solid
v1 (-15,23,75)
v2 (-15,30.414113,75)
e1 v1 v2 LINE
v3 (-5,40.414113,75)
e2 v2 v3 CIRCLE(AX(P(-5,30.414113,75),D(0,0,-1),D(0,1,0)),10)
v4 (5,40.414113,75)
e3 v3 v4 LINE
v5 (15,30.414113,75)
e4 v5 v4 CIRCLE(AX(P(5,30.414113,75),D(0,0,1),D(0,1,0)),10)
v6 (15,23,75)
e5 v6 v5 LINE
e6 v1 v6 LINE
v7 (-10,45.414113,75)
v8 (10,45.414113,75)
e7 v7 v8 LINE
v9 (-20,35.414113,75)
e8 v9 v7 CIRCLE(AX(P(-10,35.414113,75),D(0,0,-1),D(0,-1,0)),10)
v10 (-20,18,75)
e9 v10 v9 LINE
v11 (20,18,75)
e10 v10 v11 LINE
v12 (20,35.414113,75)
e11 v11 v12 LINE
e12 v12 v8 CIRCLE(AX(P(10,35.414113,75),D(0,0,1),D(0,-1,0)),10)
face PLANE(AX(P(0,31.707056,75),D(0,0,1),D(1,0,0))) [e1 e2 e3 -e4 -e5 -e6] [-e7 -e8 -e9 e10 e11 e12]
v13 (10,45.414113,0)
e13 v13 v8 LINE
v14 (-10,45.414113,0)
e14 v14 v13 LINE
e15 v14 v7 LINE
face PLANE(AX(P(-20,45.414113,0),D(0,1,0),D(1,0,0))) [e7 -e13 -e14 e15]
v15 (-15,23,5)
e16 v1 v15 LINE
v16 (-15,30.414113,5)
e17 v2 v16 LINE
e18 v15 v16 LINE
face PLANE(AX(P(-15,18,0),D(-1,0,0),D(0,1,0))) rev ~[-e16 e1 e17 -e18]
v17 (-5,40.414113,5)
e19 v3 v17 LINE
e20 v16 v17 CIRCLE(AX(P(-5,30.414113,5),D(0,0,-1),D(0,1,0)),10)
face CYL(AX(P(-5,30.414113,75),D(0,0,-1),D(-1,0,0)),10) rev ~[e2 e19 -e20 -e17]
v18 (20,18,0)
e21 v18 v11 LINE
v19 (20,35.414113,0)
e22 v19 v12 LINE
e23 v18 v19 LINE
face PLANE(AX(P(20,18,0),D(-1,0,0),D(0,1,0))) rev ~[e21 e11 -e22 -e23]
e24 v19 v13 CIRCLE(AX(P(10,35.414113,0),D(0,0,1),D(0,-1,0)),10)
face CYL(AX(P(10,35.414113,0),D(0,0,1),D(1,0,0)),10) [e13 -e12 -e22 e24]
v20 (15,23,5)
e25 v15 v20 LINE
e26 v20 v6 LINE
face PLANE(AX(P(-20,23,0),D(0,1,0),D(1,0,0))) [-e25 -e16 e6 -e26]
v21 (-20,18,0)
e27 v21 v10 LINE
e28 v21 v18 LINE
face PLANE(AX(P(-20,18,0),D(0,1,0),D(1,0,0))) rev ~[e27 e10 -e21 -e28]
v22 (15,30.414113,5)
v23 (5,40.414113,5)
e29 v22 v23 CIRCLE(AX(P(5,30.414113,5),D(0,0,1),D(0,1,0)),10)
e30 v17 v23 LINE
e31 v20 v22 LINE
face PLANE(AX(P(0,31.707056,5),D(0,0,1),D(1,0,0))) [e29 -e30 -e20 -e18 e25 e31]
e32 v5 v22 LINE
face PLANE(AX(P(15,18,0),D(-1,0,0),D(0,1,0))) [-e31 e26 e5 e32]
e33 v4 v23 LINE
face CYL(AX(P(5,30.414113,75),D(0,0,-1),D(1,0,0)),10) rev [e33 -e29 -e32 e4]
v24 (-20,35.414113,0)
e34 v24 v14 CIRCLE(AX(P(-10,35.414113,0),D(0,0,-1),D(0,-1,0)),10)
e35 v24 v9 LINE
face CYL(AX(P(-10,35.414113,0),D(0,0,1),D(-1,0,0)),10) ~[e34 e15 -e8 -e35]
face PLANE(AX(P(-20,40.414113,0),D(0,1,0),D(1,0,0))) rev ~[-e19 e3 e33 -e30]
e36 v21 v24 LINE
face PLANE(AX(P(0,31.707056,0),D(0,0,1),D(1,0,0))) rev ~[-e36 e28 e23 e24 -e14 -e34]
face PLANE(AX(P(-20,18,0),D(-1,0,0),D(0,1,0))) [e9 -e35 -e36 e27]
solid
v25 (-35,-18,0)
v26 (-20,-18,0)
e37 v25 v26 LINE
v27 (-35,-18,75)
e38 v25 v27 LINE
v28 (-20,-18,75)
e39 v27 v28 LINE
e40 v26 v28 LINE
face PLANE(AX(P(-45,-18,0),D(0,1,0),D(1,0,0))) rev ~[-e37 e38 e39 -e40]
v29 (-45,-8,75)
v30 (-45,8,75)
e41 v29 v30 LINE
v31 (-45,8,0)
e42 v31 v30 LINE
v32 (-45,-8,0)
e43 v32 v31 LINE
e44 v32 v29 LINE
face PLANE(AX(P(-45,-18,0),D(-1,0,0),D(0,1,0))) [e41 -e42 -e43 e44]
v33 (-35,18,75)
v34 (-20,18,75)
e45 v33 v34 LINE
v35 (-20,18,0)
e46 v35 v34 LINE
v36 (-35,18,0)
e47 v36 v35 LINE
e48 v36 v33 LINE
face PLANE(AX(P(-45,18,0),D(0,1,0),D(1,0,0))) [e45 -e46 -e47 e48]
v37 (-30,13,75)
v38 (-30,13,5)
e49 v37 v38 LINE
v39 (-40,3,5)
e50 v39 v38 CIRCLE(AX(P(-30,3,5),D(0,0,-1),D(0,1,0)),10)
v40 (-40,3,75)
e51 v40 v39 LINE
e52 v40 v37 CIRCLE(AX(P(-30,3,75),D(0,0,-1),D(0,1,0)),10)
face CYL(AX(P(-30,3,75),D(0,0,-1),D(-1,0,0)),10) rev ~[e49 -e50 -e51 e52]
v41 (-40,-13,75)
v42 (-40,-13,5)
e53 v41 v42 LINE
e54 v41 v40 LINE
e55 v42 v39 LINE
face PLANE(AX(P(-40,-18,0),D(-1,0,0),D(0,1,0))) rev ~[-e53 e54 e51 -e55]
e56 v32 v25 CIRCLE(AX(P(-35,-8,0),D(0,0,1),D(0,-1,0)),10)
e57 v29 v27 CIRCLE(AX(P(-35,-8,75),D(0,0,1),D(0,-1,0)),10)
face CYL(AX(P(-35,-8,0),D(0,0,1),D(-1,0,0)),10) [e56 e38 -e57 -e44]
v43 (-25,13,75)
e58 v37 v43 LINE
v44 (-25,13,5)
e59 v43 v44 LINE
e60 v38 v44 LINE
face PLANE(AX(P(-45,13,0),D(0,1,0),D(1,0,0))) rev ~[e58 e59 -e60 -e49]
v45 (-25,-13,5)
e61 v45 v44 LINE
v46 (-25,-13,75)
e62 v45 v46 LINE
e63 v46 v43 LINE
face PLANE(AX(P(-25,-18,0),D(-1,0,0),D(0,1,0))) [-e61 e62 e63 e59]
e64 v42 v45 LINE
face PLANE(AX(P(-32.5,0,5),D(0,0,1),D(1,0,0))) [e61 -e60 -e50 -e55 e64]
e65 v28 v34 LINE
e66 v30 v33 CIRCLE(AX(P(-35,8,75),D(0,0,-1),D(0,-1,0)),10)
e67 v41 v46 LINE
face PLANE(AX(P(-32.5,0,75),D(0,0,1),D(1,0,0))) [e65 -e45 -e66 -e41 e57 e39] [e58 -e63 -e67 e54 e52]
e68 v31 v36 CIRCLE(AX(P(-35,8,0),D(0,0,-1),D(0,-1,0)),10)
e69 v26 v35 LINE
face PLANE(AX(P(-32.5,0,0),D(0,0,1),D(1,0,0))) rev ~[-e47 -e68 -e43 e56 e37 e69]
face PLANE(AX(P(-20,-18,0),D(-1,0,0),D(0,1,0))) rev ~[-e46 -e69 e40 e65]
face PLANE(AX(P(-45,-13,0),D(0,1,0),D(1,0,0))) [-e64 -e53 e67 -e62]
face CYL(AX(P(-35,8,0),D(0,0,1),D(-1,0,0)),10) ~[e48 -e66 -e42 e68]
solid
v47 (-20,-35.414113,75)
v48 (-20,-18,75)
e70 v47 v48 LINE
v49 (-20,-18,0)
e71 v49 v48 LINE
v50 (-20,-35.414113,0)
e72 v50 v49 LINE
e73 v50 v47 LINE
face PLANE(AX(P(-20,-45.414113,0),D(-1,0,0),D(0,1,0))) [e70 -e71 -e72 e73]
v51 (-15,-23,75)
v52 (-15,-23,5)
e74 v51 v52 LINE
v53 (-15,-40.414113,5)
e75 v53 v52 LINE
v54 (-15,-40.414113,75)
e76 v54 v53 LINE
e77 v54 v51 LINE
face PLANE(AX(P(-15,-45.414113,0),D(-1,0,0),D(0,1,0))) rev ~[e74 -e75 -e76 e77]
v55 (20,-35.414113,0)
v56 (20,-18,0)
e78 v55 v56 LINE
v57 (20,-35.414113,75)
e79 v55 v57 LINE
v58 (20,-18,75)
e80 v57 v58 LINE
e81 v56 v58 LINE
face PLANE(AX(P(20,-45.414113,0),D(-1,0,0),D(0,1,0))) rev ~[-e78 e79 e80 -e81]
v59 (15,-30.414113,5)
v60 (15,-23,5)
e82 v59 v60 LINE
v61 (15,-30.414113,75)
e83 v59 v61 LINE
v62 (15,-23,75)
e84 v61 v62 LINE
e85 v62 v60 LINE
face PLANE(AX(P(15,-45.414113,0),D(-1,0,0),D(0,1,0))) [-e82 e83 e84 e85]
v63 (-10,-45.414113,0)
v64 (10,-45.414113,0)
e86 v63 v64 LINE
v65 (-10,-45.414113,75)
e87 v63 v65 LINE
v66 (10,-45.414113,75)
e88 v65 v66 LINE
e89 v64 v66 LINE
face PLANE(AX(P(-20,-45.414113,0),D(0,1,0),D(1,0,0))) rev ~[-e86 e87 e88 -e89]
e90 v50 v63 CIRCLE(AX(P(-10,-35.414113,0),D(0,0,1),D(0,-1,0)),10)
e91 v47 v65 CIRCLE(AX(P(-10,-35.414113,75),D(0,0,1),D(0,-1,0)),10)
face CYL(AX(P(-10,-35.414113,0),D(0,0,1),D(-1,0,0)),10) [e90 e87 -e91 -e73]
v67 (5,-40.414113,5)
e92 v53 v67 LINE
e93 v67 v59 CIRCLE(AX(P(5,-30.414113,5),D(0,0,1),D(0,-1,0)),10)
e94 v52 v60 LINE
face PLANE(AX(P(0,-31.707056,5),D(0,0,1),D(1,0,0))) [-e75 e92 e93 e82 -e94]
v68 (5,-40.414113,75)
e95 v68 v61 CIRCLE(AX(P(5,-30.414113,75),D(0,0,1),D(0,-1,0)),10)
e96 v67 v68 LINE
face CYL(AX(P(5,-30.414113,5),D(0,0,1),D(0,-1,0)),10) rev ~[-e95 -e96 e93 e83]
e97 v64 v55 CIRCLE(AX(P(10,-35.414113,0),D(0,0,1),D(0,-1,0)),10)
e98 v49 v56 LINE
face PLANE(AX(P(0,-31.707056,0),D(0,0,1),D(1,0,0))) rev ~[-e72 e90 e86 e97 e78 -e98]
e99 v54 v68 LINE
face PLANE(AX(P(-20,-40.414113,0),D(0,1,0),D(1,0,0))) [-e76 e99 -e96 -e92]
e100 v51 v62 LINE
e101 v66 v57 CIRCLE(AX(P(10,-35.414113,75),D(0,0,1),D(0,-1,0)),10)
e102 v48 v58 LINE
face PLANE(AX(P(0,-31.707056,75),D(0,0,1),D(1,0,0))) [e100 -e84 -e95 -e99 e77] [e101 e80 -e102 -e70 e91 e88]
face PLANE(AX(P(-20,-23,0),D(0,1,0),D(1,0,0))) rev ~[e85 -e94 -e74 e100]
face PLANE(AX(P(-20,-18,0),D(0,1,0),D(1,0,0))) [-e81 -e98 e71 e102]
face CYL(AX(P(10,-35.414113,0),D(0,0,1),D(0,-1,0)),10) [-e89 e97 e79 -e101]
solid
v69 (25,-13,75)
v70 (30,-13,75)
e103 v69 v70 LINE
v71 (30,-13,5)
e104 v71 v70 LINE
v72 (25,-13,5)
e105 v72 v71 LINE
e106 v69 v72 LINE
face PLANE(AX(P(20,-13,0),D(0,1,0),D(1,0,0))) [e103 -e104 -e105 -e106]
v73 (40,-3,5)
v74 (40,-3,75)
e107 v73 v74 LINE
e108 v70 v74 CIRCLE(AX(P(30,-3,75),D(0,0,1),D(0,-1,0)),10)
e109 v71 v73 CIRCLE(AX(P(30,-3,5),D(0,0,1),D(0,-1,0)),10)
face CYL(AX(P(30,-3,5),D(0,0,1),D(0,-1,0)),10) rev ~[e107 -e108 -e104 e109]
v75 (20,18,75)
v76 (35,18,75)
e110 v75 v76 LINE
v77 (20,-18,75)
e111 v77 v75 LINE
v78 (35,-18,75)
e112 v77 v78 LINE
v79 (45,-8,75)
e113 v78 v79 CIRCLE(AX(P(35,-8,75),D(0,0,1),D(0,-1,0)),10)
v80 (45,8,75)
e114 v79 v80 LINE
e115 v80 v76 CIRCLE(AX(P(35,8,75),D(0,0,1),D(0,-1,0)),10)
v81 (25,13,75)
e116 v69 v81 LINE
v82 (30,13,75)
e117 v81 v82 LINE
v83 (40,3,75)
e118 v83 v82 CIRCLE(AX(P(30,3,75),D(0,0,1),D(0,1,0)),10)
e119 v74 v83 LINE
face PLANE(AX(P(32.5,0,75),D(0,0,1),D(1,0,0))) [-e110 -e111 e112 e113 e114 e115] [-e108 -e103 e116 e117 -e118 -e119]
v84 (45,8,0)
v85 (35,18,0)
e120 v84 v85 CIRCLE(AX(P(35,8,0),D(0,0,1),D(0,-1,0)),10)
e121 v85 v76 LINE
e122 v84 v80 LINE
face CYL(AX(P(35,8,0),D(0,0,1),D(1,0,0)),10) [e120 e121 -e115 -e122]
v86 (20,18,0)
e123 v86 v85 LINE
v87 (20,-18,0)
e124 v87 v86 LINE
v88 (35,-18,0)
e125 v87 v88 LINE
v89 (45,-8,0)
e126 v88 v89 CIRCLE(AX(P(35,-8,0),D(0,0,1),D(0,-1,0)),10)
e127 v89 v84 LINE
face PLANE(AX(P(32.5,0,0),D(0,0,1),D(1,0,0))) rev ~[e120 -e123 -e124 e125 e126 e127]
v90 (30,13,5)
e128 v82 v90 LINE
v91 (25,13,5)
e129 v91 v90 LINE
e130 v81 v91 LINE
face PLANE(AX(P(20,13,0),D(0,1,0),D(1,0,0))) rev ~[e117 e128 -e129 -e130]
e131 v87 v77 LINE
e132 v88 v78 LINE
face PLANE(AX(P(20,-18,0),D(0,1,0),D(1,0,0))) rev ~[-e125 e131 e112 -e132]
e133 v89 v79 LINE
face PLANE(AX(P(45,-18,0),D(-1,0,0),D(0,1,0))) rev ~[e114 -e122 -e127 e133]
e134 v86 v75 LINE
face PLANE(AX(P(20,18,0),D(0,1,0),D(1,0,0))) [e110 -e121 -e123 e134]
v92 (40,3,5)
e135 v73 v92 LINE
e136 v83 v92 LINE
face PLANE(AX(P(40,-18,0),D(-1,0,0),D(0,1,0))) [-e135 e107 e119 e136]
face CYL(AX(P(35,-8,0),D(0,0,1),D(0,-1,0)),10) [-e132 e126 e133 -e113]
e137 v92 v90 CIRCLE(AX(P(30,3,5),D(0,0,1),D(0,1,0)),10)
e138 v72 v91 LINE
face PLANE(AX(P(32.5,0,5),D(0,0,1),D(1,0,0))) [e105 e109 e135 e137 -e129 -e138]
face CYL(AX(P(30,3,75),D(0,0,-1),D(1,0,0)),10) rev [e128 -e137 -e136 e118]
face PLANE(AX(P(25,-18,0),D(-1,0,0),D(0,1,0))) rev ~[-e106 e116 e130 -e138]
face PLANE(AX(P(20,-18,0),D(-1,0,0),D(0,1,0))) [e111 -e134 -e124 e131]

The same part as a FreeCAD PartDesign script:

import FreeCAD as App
import Part
import Sketcher

V = App.Vector


def edges_at(feature, points):
    """Names of the edges that pass closest to the given points."""
    edges = feature.Shape.Edges
    near = lambda p: min(range(len(edges)), key=lambda i: edges[i].distToShape(Part.Vertex(*p))[0])
    return sorted({f"Edge{near(p) + 1}" for p in points})


def faces_at(feature, points):
    """Names of the faces that lie closest to the given points."""
    faces = feature.Shape.Faces
    near = lambda p: min(range(len(faces)), key=lambda i: faces[i].distToShape(Part.Vertex(*p))[0])
    return sorted({f"Face{near(p) + 1}" for p in points})

doc = App.newDocument("Part")
params = doc.addObject("Spreadsheet::Sheet", "Params")
for row, (alias, value) in enumerate([
    ("sketch1_width", "40 mm"),
    ("pad1_length", "75 mm"),
    ("thickness_wall", "5 mm"),
    ("fillet_radius", "10 mm"),
    ("sketch2_width", "25 mm"),
    ("sketch2_height", "36 mm"),
    ("pad2_length", "75 mm"),
    ("thickness2_wall", "5 mm"),
    ("fillet2_radius", "10 mm"),
    ("sketch3_width", "25 mm"),
    ("sketch3_height", "36 mm"),
    ("pad3_length", "75 mm"),
    ("thickness3_wall", "5 mm"),
    ("fillet3_radius", "10 mm"),
    ("sketch4_width", "40 mm"),
    ("pad4_length", "75 mm"),
    ("thickness4_wall", "5 mm"),
    ("fillet4_radius", "10 mm"),
], start=1):
    params.set(f"A{row}", alias)
    params.set(f"B{row}", "=" + value)
    params.setAlias(f"B{row}", alias)

body = doc.addObject("PartDesign::Body", "Body")

# Sketch on XY plane
sketch1 = body.newObject("Sketcher::SketchObject", "Sketch")
sketch1.AttachmentSupport = (doc.getObject("XY_Plane"), [""])
sketch1.MapMode = "FlatFace"
sketch1.addGeometry([
    Part.LineSegment(V(-20, 45, 0), V(-20, 18, 0)),
    Part.LineSegment(V(-20, 18, 0), V(20, 18, 0)),
    Part.LineSegment(V(20, 18, 0), V(20, 45, 0)),
    Part.LineSegment(V(20, 45, 0), V(-20, 45, 0)),
], False)
sketch1.addConstraint([
    Sketcher.Constraint("Coincident", 0, 2, 1, 1),
    Sketcher.Constraint("Coincident", 1, 2, 2, 1),
    Sketcher.Constraint("Coincident", 2, 2, 3, 1),
    Sketcher.Constraint("Coincident", 3, 2, 0, 1),
    Sketcher.Constraint("Vertical", 0),
    Sketcher.Constraint("Horizontal", 1),
    Sketcher.Constraint("Vertical", 2),
    Sketcher.Constraint("Horizontal", 3),
    Sketcher.Constraint("DistanceX", 1, 1, 1, 2, 40.0),
    Sketcher.Constraint("DistanceX", 0, 2, -1, 1, 20.0),
    Sketcher.Constraint("DistanceY", -1, 1, 0, 2, 18.0),
    Sketcher.Constraint("DistanceY", 0, 2, 0, 1, 27.414113),
])
sketch1.setExpression("Constraints[8]", "Params.sketch1_width")
pad1 = body.newObject("PartDesign::Pad", "Pad")
pad1.Profile = sketch1
pad1.setExpression("Length", "Params.pad1_length")
doc.recompute()

thickness = body.newObject("PartDesign::Thickness", "Thickness")
thickness.Base = (pad1, faces_at(pad1, [(0, 31.707, 75)]))
thickness.setExpression("Value", "Params.thickness_wall")
thickness.Reversed = True
thickness.Join = "Arc"
doc.recompute()

fillet = body.newObject("PartDesign::Fillet", "Fillet")
fillet.Base = (thickness, edges_at(thickness, [
    (20, 45.414, 37.5),
    (-20, 45.414, 37.5),
    (15, 40.414, 40),
    (-15, 40.414, 40),
]))
fillet.setExpression("Radius", "Params.fillet_radius")
body2 = doc.addObject("PartDesign::Body", "Body001")

# Sketch on XY plane
sketch2 = body2.newObject("Sketcher::SketchObject", "Sketch001")
sketch2.AttachmentSupport = (doc.getObject("XY_Plane001"), [""])
sketch2.MapMode = "FlatFace"
sketch2.addGeometry([
    Part.LineSegment(V(20, 18, 0), V(20, -18, 0)),
    Part.LineSegment(V(20, -18, 0), V(45, -18, 0)),
    Part.LineSegment(V(45, -18, 0), V(45, 18, 0)),
    Part.LineSegment(V(45, 18, 0), V(20, 18, 0)),
], False)
sketch2.addConstraint([
    Sketcher.Constraint("Coincident", 0, 2, 1, 1),
    Sketcher.Constraint("Coincident", 1, 2, 2, 1),
    Sketcher.Constraint("Coincident", 2, 2, 3, 1),
    Sketcher.Constraint("Coincident", 3, 2, 0, 1),
    Sketcher.Constraint("Vertical", 0),
    Sketcher.Constraint("Horizontal", 1),
    Sketcher.Constraint("Vertical", 2),
    Sketcher.Constraint("Horizontal", 3),
    Sketcher.Constraint("DistanceX", 1, 1, 1, 2, 25.0),
    Sketcher.Constraint("DistanceY", 0, 2, 0, 1, 36.0),
    Sketcher.Constraint("DistanceX", -1, 1, 0, 2, 20.0),
    Sketcher.Constraint("DistanceY", 0, 2, -1, 1, 18.0),
])
sketch2.setExpression("Constraints[8]", "Params.sketch2_width")
sketch2.setExpression("Constraints[9]", "Params.sketch2_height")
pad2 = body2.newObject("PartDesign::Pad", "Pad001")
pad2.Profile = sketch2
pad2.setExpression("Length", "Params.pad2_length")
doc.recompute()

thickness2 = body2.newObject("PartDesign::Thickness", "Thickness001")
thickness2.Base = (pad2, faces_at(pad2, [(32.5, 0, 75)]))
thickness2.setExpression("Value", "Params.thickness2_wall")
thickness2.Reversed = True
thickness2.Join = "Arc"
doc.recompute()

fillet2 = body2.newObject("PartDesign::Fillet", "Fillet001")
fillet2.Base = (thickness2, edges_at(thickness2, [
    (45, 18, 37.5),
    (45, -18, 37.5),
    (40, -13, 40),
    (40, 13, 40),
]))
fillet2.setExpression("Radius", "Params.fillet2_radius")
body3 = doc.addObject("PartDesign::Body", "Body002")

# Sketch on XY plane
sketch3 = body3.newObject("Sketcher::SketchObject", "Sketch002")
sketch3.AttachmentSupport = (doc.getObject("XY_Plane002"), [""])
sketch3.MapMode = "FlatFace"
sketch3.addGeometry([
    Part.LineSegment(V(-45, 18, 0), V(-45, -18, 0)),
    Part.LineSegment(V(-45, -18, 0), V(-20, -18, 0)),
    Part.LineSegment(V(-20, -18, 0), V(-20, 18, 0)),
    Part.LineSegment(V(-20, 18, 0), V(-45, 18, 0)),
], False)
sketch3.addConstraint([
    Sketcher.Constraint("Coincident", 0, 2, 1, 1),
    Sketcher.Constraint("Coincident", 1, 2, 2, 1),
    Sketcher.Constraint("Coincident", 2, 2, 3, 1),
    Sketcher.Constraint("Coincident", 3, 2, 0, 1),
    Sketcher.Constraint("Vertical", 0),
    Sketcher.Constraint("Horizontal", 1),
    Sketcher.Constraint("Vertical", 2),
    Sketcher.Constraint("Horizontal", 3),
    Sketcher.Constraint("DistanceX", 1, 1, 1, 2, 25.0),
    Sketcher.Constraint("DistanceY", 0, 2, 0, 1, 36.0),
    Sketcher.Constraint("DistanceX", 0, 2, -1, 1, 45.0),
    Sketcher.Constraint("DistanceY", 0, 2, -1, 1, 18.0),
])
sketch3.setExpression("Constraints[8]", "Params.sketch3_width")
sketch3.setExpression("Constraints[9]", "Params.sketch3_height")
pad3 = body3.newObject("PartDesign::Pad", "Pad002")
pad3.Profile = sketch3
pad3.setExpression("Length", "Params.pad3_length")
doc.recompute()

thickness3 = body3.newObject("PartDesign::Thickness", "Thickness002")
thickness3.Base = (pad3, faces_at(pad3, [(-32.5, 0, 75)]))
thickness3.setExpression("Value", "Params.thickness3_wall")
thickness3.Reversed = True
thickness3.Join = "Arc"
doc.recompute()

fillet3 = body3.newObject("PartDesign::Fillet", "Fillet002")
fillet3.Base = (thickness3, edges_at(thickness3, [(-45, 18, 37.5), (-45, -18, 37.5), (-40, 13, 40)]))
fillet3.setExpression("Radius", "Params.fillet3_radius")
body4 = doc.addObject("PartDesign::Body", "Body003")

# Sketch on XY plane
sketch4 = body4.newObject("Sketcher::SketchObject", "Sketch003")
sketch4.AttachmentSupport = (doc.getObject("XY_Plane003"), [""])
sketch4.MapMode = "FlatFace"
sketch4.addGeometry([
    Part.LineSegment(V(-20, -18, 0), V(-20, -45, 0)),
    Part.LineSegment(V(-20, -45, 0), V(20, -45, 0)),
    Part.LineSegment(V(20, -45, 0), V(20, -18, 0)),
    Part.LineSegment(V(20, -18, 0), V(-20, -18, 0)),
], False)
sketch4.addConstraint([
    Sketcher.Constraint("Coincident", 0, 2, 1, 1),
    Sketcher.Constraint("Coincident", 1, 2, 2, 1),
    Sketcher.Constraint("Coincident", 2, 2, 3, 1),
    Sketcher.Constraint("Coincident", 3, 2, 0, 1),
    Sketcher.Constraint("Vertical", 0),
    Sketcher.Constraint("Horizontal", 1),
    Sketcher.Constraint("Vertical", 2),
    Sketcher.Constraint("Horizontal", 3),
    Sketcher.Constraint("DistanceX", 1, 1, 1, 2, 40.0),
    Sketcher.Constraint("DistanceX", 0, 2, -1, 1, 20.0),
    Sketcher.Constraint("DistanceY", 2, 2, -1, 1, 18.0),
    Sketcher.Constraint("DistanceY", 0, 2, 0, 1, 27.414113),
])
sketch4.setExpression("Constraints[8]", "Params.sketch4_width")
pad4 = body4.newObject("PartDesign::Pad", "Pad003")
pad4.Profile = sketch4
pad4.setExpression("Length", "Params.pad4_length")
doc.recompute()

thickness4 = body4.newObject("PartDesign::Thickness", "Thickness003")
thickness4.Base = (pad4, faces_at(pad4, [(0, -31.707, 75)]))
thickness4.setExpression("Value", "Params.thickness4_wall")
thickness4.Reversed = True
thickness4.Join = "Arc"
doc.recompute()

fillet4 = body4.newObject("PartDesign::Fillet", "Fillet003")
fillet4.Base = (thickness4, edges_at(thickness4, [(20, -45.414, 37.5), (-20, -45.414, 37.5), (15, -40.414, 40)]))
fillet4.setExpression("Radius", "Params.fillet4_radius")

doc.recompute()
